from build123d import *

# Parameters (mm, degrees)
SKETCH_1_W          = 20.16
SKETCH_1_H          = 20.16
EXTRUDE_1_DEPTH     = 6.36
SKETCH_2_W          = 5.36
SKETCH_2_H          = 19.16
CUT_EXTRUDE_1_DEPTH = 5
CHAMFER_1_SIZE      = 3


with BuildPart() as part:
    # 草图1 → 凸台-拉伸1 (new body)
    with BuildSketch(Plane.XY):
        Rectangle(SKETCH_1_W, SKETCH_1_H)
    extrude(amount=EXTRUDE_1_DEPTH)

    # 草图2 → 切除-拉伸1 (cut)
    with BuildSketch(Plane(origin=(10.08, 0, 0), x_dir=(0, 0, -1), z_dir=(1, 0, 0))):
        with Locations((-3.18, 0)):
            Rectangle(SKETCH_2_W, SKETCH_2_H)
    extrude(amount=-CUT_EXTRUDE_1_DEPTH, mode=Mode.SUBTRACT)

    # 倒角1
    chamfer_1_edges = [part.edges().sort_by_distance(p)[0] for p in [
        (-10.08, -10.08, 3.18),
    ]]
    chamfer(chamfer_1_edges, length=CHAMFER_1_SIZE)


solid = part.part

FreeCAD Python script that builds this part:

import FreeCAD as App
import Part
import Sketcher


def edges_at(feature, points):
    """Names of the edges that pass closest to the given points."""
    edges = feature.Shape.Edges
    near = lambda p: min(range(len(edges)), key=lambda i: edges[i].distToShape(Part.Vertex(*p))[0])
    return sorted({f"Edge{near(p) + 1}" for p in points})

doc = App.newDocument("Part")
body = doc.addObject("PartDesign::Body", "Body")

sketch1 = body.newObject("Sketcher::SketchObject", "Sketch")
sketch1.AttachmentSupport = (doc.getObject("XY_Plane"), [""])
sketch1.MapMode = "FlatFace"
sketch1.addGeometry(Part.LineSegment(App.Vector(-10.08, 10.08, 0), App.Vector(-10.08, -10.08, 0)), False)
sketch1.addGeometry(Part.LineSegment(App.Vector(-10.08, -10.08, 0), App.Vector(10.08, -10.08, 0)), False)
sketch1.addGeometry(Part.LineSegment(App.Vector(10.08, -10.08, 0), App.Vector(10.08, 10.08, 0)), False)
sketch1.addGeometry(Part.LineSegment(App.Vector(10.08, 10.08, 0), App.Vector(-10.08, 10.08, 0)), False)
sketch1.addConstraint(Sketcher.Constraint("Coincident", 0, 2, 1, 1))
sketch1.addConstraint(Sketcher.Constraint("Coincident", 1, 2, 2, 1))
sketch1.addConstraint(Sketcher.Constraint("Coincident", 2, 2, 3, 1))
sketch1.addConstraint(Sketcher.Constraint("Coincident", 3, 2, 0, 1))
sketch1.addConstraint(Sketcher.Constraint("Vertical", 0))
sketch1.addConstraint(Sketcher.Constraint("Horizontal", 1))
sketch1.addConstraint(Sketcher.Constraint("Vertical", 2))
sketch1.addConstraint(Sketcher.Constraint("Horizontal", 3))
sketch1.addConstraint(Sketcher.Constraint("Symmetric", 0, 2, 2, 2, -1, 1))
sketch1.addConstraint(Sketcher.Constraint("Equal", 3, 0))
sketch1.addConstraint(Sketcher.Constraint("DistanceX", 1, 1, 1, 2, 20.16))
pad1 = body.newObject("PartDesign::Pad", "Pad")
pad1.Profile = sketch1
pad1.Length = 6.36

sketch2 = body.newObject("Sketcher::SketchObject", "Sketch001")
sketch2.AttachmentSupport = (doc.getObject("YZ_Plane"), [""])
sketch2.MapMode = "FlatFace"
sketch2.AttachmentOffset = App.Placement(App.Vector(0, 0, 10.08), App.Rotation())
sketch2.addGeometry(Part.LineSegment(App.Vector(9.58, 5.86, 0), App.Vector(-9.58, 5.86, 0)), False)
sketch2.addGeometry(Part.LineSegment(App.Vector(-9.58, 5.86, 0), App.Vector(-9.58, 0.5, 0)), False)
sketch2.addGeometry(Part.LineSegment(App.Vector(-9.58, 0.5, 0), App.Vector(9.58, 0.5, 0)), False)
sketch2.addGeometry(Part.LineSegment(App.Vector(9.58, 0.5, 0), App.Vector(9.58, 5.86, 0)), False)
sketch2.addConstraint(Sketcher.Constraint("Coincident", 0, 2, 1, 1))
sketch2.addConstraint(Sketcher.Constraint("Coincident", 1, 2, 2, 1))
sketch2.addConstraint(Sketcher.Constraint("Coincident", 2, 2, 3, 1))
sketch2.addConstraint(Sketcher.Constraint("Coincident", 3, 2, 0, 1))
sketch2.addConstraint(Sketcher.Constraint("Horizontal", 0))
sketch2.addConstraint(Sketcher.Constraint("Vertical", 1))
sketch2.addConstraint(Sketcher.Constraint("Horizontal", 2))
sketch2.addConstraint(Sketcher.Constraint("Vertical", 3))
sketch2.addConstraint(Sketcher.Constraint("DistanceX", 0, 2, 0, 1, 19.16))
sketch2.addConstraint(Sketcher.Constraint("DistanceY", 1, 2, 1, 1, 5.36))
sketch2.addConstraint(Sketcher.Constraint("DistanceY", -1, 1, 1, 2, 0.5))
sketch2.addConstraint(Sketcher.Constraint("DistanceX", 0, 2, -1, 1, 9.58))
pocket1 = body.newObject("PartDesign::Pocket", "Pocket")
pocket1.Profile = sketch2
pocket1.Length = 5
doc.recompute()

chamfer = body.newObject("PartDesign::Chamfer", "Chamfer")
chamfer.Base = (pocket1, edges_at(pocket1, [(-10.08, -10.08, 3.18)]))
chamfer.Size = 3

doc.recompute()
